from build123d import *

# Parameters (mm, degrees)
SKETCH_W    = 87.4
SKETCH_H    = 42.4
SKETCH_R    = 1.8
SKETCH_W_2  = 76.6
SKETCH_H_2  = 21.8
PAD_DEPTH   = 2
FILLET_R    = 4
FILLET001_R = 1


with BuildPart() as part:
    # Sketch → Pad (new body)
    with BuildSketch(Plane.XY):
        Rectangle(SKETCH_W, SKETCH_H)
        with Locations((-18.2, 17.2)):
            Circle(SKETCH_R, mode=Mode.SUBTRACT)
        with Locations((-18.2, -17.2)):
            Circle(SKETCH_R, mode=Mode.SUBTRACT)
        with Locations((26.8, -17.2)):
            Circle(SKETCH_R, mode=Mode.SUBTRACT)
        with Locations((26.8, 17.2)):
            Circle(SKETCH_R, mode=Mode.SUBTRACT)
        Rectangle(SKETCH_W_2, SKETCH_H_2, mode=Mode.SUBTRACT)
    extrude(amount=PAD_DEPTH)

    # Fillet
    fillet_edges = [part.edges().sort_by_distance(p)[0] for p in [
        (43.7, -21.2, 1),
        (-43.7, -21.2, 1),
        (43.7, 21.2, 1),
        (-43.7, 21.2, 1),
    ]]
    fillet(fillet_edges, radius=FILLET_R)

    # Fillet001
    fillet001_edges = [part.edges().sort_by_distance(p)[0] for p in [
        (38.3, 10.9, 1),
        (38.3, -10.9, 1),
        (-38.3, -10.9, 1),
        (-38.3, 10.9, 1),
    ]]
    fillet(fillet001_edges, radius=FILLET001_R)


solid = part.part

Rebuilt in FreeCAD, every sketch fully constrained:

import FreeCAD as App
import Part
import Sketcher

V = App.Vector


def edges_at(feature, points):
    """Names of the edges that pass closest to the given points."""
    edges = feature.Shape.Edges
    near = lambda p: min(range(len(edges)), key=lambda i: edges[i].distToShape(Part.Vertex(*p))[0])
    return sorted({f"Edge{near(p) + 1}" for p in points})

doc = App.newDocument("Part")
body = doc.addObject("PartDesign::Body", "Body")

sketch1 = body.newObject("Sketcher::SketchObject", "Sketch")
sketch1.AttachmentSupport = (doc.getObject("XY_Plane"), [""])
sketch1.MapMode = "FlatFace"
sketch1.addGeometry([
    Part.LineSegment(V(-43.7, 21.2, 0), V(-43.7, -21.2, 0)),
    Part.LineSegment(V(-43.7, -21.2, 0), V(43.7, -21.2, 0)),
    Part.LineSegment(V(43.7, -21.2, 0), V(43.7, 21.2, 0)),
    Part.LineSegment(V(43.7, 21.2, 0), V(-43.7, 21.2, 0)),
    Part.Circle(V(-18.2, -17.2, 0), V(0, 0, 1), 1.8),
    Part.Circle(V(26.8, -17.2, 0), V(0, 0, 1), 1.8),
    Part.Circle(V(-18.2, 17.2, 0), V(0, 0, 1), 1.8),
    Part.LineSegment(V(38.3, -10.9, 0), V(-38.3, -10.9, 0)),
    Part.LineSegment(V(-38.3, -10.9, 0), V(-38.3, 10.9, 0)),
    Part.LineSegment(V(-38.3, 10.9, 0), V(38.3, 10.9, 0)),
    Part.LineSegment(V(38.3, 10.9, 0), V(38.3, -10.9, 0)),
    Part.Circle(V(26.8, 17.2, 0), V(0, 0, 1), 1.8),
], False)
sketch1.addConstraint([
    Sketcher.Constraint("Coincident", 0, 2, 1, 1),
    Sketcher.Constraint("Coincident", 1, 2, 2, 1),
    Sketcher.Constraint("Coincident", 2, 2, 3, 1),
    Sketcher.Constraint("Coincident", 3, 2, 0, 1),
    Sketcher.Constraint("Coincident", 7, 2, 8, 1),
    Sketcher.Constraint("Coincident", 8, 2, 9, 1),
    Sketcher.Constraint("Coincident", 9, 2, 10, 1),
    Sketcher.Constraint("Coincident", 10, 2, 7, 1),
    Sketcher.Constraint("Vertical", 0),
    Sketcher.Constraint("Horizontal", 1),
    Sketcher.Constraint("Vertical", 2),
    Sketcher.Constraint("Horizontal", 3),
    Sketcher.Constraint("Horizontal", 7),
    Sketcher.Constraint("Vertical", 8),
    Sketcher.Constraint("Horizontal", 9),
    Sketcher.Constraint("Vertical", 10),
    Sketcher.Constraint("Equal", 4, 5),
    Sketcher.Constraint("Equal", 5, 6),
    Sketcher.Constraint("Equal", 6, 11),
    Sketcher.Constraint("Symmetric", 0, 2, 2, 2, -1, 1),
    Sketcher.Constraint("Symmetric", 7, 2, 9, 2, -1, 1),
    Sketcher.Constraint("Symmetric", 4, 3, 6, 3, -1),
    Sketcher.Constraint("Symmetric", 5, 3, 11, 3, -1),
    Sketcher.Constraint("Horizontal", 4, 3, 5, 3),
    Sketcher.Constraint("Diameter", 4, 3.6),
    Sketcher.Constraint("DistanceX", 1, 1, 1, 2, 87.4),
    Sketcher.Constraint("DistanceX", 7, 2, 7, 1, 76.6),
    Sketcher.Constraint("DistanceY", 0, 2, 0, 1, 42.4),
    Sketcher.Constraint("DistanceY", 8, 1, 8, 2, 21.8),
    Sketcher.Constraint("DistanceX", 4, 3, 5, 3, 45.0),
    Sketcher.Constraint("DistanceY", 0, 2, 4, 3, 4.0),
    Sketcher.Constraint("DistanceX", 4, 3, -1, 1, 18.2),
])
pad1 = body.newObject("PartDesign::Pad", "Pad")
pad1.Profile = sketch1
pad1.Length = 2
doc.recompute()

fillet = body.newObject("PartDesign::Fillet", "Fillet")
fillet.Base = (pad1, edges_at(pad1, [
    (43.7, -21.2, 1),
    (-43.7, -21.2, 1),
    (43.7, 21.2, 1),
    (-43.7, 21.2, 1),
]))
fillet.Radius = 4
doc.recompute()

fillet2 = body.newObject("PartDesign::Fillet", "Fillet001")
fillet2.Base = (fillet, edges_at(fillet, [
    (38.3, 10.9, 1),
    (38.3, -10.9, 1),
    (-38.3, -10.9, 1),
    (-38.3, 10.9, 1),
]))
fillet2.Radius = 1

doc.recompute()
